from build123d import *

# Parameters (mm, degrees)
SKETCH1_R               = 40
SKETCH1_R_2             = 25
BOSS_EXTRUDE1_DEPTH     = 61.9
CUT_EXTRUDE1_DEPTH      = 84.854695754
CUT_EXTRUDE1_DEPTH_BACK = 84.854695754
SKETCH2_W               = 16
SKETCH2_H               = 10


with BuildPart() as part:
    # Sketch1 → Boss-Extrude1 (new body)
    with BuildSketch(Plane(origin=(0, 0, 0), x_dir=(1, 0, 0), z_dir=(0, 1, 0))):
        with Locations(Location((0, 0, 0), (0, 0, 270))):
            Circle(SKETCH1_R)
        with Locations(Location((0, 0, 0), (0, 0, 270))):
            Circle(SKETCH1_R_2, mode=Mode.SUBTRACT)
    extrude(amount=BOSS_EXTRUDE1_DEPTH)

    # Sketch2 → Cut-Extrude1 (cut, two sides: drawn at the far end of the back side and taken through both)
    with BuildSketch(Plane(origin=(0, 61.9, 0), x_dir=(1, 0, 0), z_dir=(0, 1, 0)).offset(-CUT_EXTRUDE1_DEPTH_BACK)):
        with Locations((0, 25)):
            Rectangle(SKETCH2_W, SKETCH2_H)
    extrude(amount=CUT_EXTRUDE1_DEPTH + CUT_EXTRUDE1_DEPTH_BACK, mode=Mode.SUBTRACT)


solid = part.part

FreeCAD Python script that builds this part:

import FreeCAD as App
import Part
import Sketcher
Q = App.Units.Quantity


def add_polygon(sketch, points):
    """Adds a closed chain of lines whose ends are joined by coincident constraints."""
    first, n = sketch.GeometryCount, len(points)
    for a, b in zip(points, points[1:] + points[:1]):
        sketch.addGeometry(Part.LineSegment(App.Vector(*a, 0), App.Vector(*b, 0)), False)
    for i in range(n):
        sketch.addConstraint(Sketcher.Constraint("Coincident", first + i, 2, first + (i + 1) % n, 1))

doc = App.newDocument("Part")
params = doc.addObject("Spreadsheet::Sheet", "Params")
for row, (alias, value) in enumerate([
    ("sketch1_diameter", "80 mm"),
    ("sketch1_diameter2", "50 mm"),
    ("pad1_length", "61.9 mm"),
    ("sketch2_width", "16 mm"),
    ("sketch2_height", "10 mm"),
], start=1):
    params.set(f"A{row}", alias)
    params.set(f"B{row}", "=" + value)
    params.setAlias(f"B{row}", alias)

body = doc.addObject("PartDesign::Body", "Body")

# Sketch on XZ plane
sketch1 = body.newObject("Sketcher::SketchObject", "Sketch")
sketch1.AttachmentSupport = (doc.getObject("XZ_Plane"), [""])
sketch1.MapMode = "FlatFace"
sketch1.addGeometry([
    Part.Circle(App.Vector(0, 0, 0), App.Vector(0, 0, 1), 40),
    Part.Circle(App.Vector(0, 0, 0), App.Vector(0, 0, 1), 25),
], False)
sketch1.addConstraint([
    Sketcher.Constraint("Coincident", 0, 3, -1, 1),
    Sketcher.Constraint("Coincident", 1, 3, -1, 1),
    Sketcher.Constraint("Diameter", 0, Q("80 mm")),
    Sketcher.Constraint("Diameter", 1, Q("50 mm")),
])
sketch1.setExpression("Constraints[2]", "Params.sketch1_diameter")
sketch1.setExpression("Constraints[3]", "Params.sketch1_diameter2")
pad1 = body.newObject("PartDesign::Pad", "Pad")
pad1.Profile = sketch1
pad1.setExpression("Length", "Params.pad1_length")
pad1.Reversed = True

# Sketch on XZ plane
sketch2 = body.newObject("Sketcher::SketchObject", "Sketch001")
sketch2.AttachmentSupport = (doc.getObject("XZ_Plane"), [""])
sketch2.MapMode = "FlatFace"
sketch2.AttachmentOffset = App.Placement(App.Vector(0, 0, -61.9), App.Rotation())
add_polygon(sketch2, [(-8, -30), (-8, -20), (8, -20), (8, -30)])  # lines 0-3
sketch2.addConstraint([
    Sketcher.Constraint("Vertical", 0),
    Sketcher.Constraint("Horizontal", 1),
    Sketcher.Constraint("Vertical", 2),
    Sketcher.Constraint("Horizontal", 3),
    Sketcher.Constraint("DistanceX", 1, 1, 1, 2, Q("16 mm")),
    Sketcher.Constraint("DistanceY", 0, 1, 0, 2, Q("10 mm")),
    Sketcher.Constraint("DistanceX", 0, 2, -1, 1, Q("8 mm")),
    Sketcher.Constraint("DistanceY", 0, 2, -1, 1, Q("20 mm")),
])
sketch2.setExpression("Constraints[8]", "Params.sketch2_width")
sketch2.setExpression("Constraints[9]", "Params.sketch2_height")
pocket1 = body.newObject("PartDesign::Pocket", "Pocket")
pocket1.Profile = sketch2
pocket1.Type = "ThroughAll"
pocket1.Midplane = True

doc.recompute()
